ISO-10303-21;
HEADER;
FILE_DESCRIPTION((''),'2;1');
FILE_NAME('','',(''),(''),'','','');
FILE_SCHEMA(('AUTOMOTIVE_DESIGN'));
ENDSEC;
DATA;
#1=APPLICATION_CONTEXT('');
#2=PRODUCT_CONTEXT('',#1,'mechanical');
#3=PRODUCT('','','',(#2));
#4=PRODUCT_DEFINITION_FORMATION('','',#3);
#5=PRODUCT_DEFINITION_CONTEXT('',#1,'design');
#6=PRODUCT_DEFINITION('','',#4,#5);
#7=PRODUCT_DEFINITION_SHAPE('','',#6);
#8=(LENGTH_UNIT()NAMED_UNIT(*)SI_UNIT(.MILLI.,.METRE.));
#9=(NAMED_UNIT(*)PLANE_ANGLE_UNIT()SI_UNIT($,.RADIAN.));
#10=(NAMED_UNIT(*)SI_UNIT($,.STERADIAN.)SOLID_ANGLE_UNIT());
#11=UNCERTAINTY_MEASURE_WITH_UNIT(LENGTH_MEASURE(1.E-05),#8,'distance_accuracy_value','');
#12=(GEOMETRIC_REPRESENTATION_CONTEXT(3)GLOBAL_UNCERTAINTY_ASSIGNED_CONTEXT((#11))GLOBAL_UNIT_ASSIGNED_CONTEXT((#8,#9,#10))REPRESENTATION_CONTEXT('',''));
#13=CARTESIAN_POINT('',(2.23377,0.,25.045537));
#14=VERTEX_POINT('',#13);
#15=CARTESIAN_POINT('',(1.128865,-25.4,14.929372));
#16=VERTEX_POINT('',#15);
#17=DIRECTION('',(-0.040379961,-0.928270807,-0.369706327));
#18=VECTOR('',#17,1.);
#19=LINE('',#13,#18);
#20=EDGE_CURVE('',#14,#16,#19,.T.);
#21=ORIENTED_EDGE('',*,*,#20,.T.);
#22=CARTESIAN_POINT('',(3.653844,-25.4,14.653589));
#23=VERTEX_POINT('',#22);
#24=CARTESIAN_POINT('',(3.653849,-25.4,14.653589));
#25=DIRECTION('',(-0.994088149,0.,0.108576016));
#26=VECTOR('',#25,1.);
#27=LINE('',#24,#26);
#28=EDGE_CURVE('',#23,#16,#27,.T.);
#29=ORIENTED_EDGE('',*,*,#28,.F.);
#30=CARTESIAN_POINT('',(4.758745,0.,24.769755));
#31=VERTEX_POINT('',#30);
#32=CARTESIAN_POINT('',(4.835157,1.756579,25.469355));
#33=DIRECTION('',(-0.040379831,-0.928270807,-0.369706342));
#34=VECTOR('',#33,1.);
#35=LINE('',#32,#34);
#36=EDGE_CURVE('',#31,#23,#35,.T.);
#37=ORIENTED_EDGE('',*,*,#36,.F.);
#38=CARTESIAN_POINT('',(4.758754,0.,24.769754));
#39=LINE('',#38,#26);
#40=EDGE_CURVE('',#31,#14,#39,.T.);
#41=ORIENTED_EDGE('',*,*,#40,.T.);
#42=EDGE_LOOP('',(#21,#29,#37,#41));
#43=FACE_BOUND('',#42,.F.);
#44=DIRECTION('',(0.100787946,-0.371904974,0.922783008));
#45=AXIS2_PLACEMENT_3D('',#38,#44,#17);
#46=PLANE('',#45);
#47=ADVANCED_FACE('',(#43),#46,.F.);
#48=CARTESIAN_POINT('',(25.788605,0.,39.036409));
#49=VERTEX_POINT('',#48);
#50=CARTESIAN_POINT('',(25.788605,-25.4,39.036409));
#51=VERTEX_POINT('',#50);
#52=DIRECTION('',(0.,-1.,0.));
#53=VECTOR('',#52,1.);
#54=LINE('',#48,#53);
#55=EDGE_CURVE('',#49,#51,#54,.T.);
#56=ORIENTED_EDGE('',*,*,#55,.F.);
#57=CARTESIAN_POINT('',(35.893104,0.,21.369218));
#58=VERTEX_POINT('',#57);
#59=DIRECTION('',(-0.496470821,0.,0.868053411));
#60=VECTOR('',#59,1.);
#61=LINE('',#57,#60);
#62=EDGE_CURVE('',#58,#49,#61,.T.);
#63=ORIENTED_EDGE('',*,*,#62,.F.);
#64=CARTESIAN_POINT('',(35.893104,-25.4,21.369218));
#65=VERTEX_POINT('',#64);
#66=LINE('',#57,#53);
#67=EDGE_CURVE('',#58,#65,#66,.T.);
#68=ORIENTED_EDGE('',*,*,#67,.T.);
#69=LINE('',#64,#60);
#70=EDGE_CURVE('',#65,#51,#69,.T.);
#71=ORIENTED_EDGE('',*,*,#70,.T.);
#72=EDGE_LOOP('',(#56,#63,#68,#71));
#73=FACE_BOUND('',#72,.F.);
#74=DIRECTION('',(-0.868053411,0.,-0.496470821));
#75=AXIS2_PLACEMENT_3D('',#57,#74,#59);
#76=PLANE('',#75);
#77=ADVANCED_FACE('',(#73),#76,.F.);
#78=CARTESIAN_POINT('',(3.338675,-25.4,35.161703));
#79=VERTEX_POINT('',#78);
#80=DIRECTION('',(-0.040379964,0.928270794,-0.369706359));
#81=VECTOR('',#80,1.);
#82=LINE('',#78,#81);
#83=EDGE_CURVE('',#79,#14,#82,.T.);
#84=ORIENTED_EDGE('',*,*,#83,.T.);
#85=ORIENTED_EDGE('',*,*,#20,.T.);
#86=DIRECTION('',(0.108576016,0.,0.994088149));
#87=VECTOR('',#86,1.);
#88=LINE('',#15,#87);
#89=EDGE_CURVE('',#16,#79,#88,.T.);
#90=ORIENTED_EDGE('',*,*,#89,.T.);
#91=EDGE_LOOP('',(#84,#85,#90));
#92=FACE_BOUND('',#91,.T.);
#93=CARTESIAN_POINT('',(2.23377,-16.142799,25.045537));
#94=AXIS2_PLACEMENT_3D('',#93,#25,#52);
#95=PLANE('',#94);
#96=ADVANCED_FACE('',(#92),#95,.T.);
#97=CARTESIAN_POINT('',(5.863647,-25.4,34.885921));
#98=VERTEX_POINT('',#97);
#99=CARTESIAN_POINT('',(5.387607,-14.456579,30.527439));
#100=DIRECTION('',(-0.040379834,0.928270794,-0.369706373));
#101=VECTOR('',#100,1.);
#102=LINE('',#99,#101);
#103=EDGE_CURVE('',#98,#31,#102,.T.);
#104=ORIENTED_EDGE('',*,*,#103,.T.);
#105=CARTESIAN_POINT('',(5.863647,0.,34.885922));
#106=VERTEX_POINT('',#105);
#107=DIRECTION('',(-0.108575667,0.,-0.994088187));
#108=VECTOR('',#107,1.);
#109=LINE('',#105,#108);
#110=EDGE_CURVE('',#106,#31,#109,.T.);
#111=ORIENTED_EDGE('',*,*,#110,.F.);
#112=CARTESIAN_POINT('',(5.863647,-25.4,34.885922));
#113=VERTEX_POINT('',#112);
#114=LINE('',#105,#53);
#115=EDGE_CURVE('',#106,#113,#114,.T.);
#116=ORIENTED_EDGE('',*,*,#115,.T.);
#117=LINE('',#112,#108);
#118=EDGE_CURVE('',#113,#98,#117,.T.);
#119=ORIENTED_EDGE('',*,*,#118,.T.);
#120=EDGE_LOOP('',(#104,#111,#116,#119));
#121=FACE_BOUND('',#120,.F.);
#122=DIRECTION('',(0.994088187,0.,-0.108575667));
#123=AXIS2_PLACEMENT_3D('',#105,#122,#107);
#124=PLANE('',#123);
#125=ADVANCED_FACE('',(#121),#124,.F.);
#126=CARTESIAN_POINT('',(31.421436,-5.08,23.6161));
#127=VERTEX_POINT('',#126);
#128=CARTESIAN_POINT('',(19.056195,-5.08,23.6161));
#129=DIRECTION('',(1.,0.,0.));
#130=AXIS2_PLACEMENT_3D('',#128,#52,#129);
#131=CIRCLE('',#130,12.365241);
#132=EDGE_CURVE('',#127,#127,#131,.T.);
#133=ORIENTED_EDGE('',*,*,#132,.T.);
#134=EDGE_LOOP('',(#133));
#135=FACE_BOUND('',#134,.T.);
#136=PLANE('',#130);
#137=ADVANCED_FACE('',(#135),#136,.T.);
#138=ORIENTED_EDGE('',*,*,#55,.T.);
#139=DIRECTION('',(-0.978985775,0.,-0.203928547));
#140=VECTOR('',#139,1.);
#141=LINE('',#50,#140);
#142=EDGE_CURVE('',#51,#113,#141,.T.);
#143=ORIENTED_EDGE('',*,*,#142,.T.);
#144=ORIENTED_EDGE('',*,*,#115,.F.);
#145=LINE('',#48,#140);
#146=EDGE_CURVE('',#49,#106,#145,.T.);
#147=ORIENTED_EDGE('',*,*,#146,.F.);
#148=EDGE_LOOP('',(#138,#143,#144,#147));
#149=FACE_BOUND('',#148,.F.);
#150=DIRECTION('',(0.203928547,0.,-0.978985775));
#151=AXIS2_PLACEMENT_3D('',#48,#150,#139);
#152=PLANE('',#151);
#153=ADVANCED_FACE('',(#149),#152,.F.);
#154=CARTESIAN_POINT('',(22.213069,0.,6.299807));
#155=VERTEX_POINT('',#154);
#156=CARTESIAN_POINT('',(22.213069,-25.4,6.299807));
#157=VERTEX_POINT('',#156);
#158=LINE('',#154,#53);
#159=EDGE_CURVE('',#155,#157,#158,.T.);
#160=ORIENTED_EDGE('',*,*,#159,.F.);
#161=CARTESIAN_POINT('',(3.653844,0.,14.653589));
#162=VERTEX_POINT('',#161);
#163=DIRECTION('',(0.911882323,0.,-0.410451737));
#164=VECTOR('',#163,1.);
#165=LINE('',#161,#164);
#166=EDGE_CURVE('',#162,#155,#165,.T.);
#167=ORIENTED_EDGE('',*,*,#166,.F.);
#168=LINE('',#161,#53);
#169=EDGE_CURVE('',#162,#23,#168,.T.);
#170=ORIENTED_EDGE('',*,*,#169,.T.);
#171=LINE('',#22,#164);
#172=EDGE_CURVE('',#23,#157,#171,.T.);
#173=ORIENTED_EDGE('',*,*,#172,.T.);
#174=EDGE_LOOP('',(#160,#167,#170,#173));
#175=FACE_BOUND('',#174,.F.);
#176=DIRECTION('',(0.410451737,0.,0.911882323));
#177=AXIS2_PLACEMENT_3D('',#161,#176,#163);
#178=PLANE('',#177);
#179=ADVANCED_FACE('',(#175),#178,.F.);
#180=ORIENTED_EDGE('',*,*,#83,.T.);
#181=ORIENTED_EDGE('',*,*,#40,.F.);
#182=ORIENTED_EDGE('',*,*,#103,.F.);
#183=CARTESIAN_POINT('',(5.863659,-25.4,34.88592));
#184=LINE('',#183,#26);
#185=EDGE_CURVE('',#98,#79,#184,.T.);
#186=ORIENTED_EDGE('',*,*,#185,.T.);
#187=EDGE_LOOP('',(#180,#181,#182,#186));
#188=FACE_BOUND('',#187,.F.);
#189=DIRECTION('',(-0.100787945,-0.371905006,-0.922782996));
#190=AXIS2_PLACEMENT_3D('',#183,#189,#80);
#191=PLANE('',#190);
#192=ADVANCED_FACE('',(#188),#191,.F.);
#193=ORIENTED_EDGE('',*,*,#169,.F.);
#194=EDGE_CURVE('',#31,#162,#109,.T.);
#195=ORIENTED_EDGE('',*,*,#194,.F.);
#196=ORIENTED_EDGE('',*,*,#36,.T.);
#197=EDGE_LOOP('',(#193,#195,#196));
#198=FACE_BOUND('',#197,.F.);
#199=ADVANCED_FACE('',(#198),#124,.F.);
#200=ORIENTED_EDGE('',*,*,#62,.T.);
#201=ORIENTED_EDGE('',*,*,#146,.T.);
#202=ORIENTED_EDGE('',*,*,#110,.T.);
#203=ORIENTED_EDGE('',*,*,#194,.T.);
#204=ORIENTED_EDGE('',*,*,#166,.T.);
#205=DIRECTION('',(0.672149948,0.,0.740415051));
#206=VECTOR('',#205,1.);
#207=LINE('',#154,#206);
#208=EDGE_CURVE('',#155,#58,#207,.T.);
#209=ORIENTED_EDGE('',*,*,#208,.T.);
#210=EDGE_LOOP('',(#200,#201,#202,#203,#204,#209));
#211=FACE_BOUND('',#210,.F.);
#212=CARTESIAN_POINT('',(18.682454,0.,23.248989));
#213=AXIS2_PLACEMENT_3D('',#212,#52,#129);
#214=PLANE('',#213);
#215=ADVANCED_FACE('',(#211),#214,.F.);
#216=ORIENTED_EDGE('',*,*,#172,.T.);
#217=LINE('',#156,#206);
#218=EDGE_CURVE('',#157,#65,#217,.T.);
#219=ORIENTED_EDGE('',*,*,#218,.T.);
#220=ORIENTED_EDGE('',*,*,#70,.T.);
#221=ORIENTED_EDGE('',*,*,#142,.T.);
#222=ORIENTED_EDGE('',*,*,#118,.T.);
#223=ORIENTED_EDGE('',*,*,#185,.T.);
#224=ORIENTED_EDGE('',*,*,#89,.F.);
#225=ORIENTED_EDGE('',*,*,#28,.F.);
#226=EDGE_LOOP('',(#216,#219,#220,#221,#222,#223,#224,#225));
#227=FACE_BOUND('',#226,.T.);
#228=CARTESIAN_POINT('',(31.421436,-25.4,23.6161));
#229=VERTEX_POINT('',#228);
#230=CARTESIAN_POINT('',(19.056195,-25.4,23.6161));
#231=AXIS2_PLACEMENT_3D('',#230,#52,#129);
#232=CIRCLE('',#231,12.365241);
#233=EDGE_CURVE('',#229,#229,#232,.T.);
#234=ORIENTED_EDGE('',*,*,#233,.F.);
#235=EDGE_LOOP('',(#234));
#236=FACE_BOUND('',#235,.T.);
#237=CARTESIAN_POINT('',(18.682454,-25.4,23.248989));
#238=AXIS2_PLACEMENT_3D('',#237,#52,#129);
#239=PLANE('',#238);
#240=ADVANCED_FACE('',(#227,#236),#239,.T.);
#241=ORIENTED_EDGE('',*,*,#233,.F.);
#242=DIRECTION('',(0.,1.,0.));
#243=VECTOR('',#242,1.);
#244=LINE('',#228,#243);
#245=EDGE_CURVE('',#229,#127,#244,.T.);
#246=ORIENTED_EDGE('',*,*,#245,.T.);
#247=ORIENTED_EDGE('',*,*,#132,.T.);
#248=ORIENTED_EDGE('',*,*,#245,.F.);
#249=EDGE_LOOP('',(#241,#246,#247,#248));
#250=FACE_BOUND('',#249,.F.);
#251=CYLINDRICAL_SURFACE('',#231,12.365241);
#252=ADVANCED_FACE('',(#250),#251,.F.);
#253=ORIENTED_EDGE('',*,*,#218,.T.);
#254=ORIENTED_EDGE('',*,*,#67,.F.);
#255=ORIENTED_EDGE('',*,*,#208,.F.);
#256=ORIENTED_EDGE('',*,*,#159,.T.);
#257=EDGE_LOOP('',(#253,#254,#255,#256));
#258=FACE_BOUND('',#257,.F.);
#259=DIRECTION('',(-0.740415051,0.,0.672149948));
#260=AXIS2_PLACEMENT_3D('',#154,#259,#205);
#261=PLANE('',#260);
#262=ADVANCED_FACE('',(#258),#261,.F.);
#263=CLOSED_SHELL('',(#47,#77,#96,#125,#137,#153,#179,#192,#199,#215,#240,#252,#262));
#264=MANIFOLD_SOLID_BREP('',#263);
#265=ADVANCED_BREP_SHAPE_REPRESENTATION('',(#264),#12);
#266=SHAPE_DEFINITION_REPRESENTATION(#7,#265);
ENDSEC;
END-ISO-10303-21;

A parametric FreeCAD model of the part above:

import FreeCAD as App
import Part
import Sketcher

V = App.Vector
Q = App.Units.Quantity


def add_polygon(sketch, points):
    """Adds a closed chain of lines whose ends are joined by coincident constraints."""
    first, n = sketch.GeometryCount, len(points)
    for a, b in zip(points, points[1:] + points[:1]):
        sketch.addGeometry(Part.LineSegment(App.Vector(*a, 0), App.Vector(*b, 0)), False)
    for i in range(n):
        sketch.addConstraint(Sketcher.Constraint("Coincident", first + i, 2, first + (i + 1) % n, 1))

doc = App.newDocument("Part")
params = doc.addObject("Spreadsheet::Sheet", "Params")
for row, (alias, value) in enumerate([
    ("pad1_length", "1 in"),
    ("pocket1_length", "0.8 in"),
    ("pad2_length", "0.1 in"),
], start=1):
    params.set(f"A{row}", alias)
    params.set(f"B{row}", "=" + value)
    params.setAlias(f"B{row}", alias)

body = doc.addObject("PartDesign::Body", "Body")

sketch1 = body.newObject("Sketcher::SketchObject", "Sketch")
sketch1.AttachmentSupport = (doc.getObject("XZ_Plane"), [""])
sketch1.MapMode = "FlatFace"
add_polygon(sketch1, [(22, 6), (36, 21), (26, 39), (6, 35), (4, 15)])
sketch1.addConstraint([
    Sketcher.Constraint("Equal", 0, 1),
    Sketcher.Constraint("Equal", 1, 2),
    Sketcher.Constraint("Equal", 2, 3),
    Sketcher.Constraint("Equal", 3, 4),
    Sketcher.Constraint("DistanceX", 3, 2, 2, 2, Q("0.0870001 in")),
    Sketcher.Constraint("DistanceX", 1, 2, 0, 2, 10.104499),
    Sketcher.Constraint("DistanceY", 4, 2, 1, 2, 32.736602),
    Sketcher.Constraint("DistanceY", -1, 1, 0, 2, 21.369218),
    Sketcher.Constraint("DistanceY", -1, 1, 1, 2, 39.036409),
    Sketcher.Constraint("DistanceX", -1, 1, 4, 2, 22.213069),
])
pad1 = body.newObject("PartDesign::Pad", "Pad")
pad1.Profile = sketch1
pad1.setExpression("Length", "Params.pad1_length")

sketch2 = body.newObject("Sketcher::SketchObject", "Sketch001")
sketch2.AttachmentSupport = (doc.getObject("XZ_Plane"), [""])
sketch2.MapMode = "FlatFace"
sketch2.AttachmentOffset = App.Placement(V(0, 0, 1 * 25.4), App.Rotation())
sketch2.addGeometry(Part.Circle(V(19, 24, 0), V(0, 0, 1), 12), False)
sketch2.addConstraint([
    Sketcher.Constraint("Diameter", 0, 24.730482),
    Sketcher.Constraint("DistanceY", -1, 1, 0, 3, 23.6161),
    Sketcher.Constraint("DistanceX", -1, 1, 0, 3, 19.056195),
])
pocket1 = body.newObject("PartDesign::Pocket", "Pocket")
pocket1.Profile = sketch2
pocket1.setExpression("Length", "Params.pocket1_length")

sketch3 = body.newObject("Sketcher::SketchObject", "Sketch002")
sketch3.Placement = App.Placement(V(2.029152, 0, -0.221627), App.Rotation(V(0, -1, 0), V(0.108576016, 0, 0.994088149), V(-0.994088149, 0, 0.108576016), "ZXY"))
add_polygon(sketch3, [(25, 15), (25, 35), (0, 25)])
sketch3.addConstraint([
    Sketcher.Constraint("Vertical", 0),
    Sketcher.Constraint("PointOnObject", 1, 2, -2),
    Sketcher.Constraint("Equal", 1, 2),
    Sketcher.Constraint("DistanceX", -1, 1, 0, 2, Q("1 in")),
    Sketcher.Constraint("DistanceY", 0, 1, 0, 2, 20.352653),
    Sketcher.Constraint("DistanceY", -1, 1, 0, 2, 35.316332),
])
pad2 = body.newObject("PartDesign::Pad", "Pad001")
pad2.Profile = sketch3
pad2.setExpression("Length", "Params.pad2_length")

doc.recompute()
